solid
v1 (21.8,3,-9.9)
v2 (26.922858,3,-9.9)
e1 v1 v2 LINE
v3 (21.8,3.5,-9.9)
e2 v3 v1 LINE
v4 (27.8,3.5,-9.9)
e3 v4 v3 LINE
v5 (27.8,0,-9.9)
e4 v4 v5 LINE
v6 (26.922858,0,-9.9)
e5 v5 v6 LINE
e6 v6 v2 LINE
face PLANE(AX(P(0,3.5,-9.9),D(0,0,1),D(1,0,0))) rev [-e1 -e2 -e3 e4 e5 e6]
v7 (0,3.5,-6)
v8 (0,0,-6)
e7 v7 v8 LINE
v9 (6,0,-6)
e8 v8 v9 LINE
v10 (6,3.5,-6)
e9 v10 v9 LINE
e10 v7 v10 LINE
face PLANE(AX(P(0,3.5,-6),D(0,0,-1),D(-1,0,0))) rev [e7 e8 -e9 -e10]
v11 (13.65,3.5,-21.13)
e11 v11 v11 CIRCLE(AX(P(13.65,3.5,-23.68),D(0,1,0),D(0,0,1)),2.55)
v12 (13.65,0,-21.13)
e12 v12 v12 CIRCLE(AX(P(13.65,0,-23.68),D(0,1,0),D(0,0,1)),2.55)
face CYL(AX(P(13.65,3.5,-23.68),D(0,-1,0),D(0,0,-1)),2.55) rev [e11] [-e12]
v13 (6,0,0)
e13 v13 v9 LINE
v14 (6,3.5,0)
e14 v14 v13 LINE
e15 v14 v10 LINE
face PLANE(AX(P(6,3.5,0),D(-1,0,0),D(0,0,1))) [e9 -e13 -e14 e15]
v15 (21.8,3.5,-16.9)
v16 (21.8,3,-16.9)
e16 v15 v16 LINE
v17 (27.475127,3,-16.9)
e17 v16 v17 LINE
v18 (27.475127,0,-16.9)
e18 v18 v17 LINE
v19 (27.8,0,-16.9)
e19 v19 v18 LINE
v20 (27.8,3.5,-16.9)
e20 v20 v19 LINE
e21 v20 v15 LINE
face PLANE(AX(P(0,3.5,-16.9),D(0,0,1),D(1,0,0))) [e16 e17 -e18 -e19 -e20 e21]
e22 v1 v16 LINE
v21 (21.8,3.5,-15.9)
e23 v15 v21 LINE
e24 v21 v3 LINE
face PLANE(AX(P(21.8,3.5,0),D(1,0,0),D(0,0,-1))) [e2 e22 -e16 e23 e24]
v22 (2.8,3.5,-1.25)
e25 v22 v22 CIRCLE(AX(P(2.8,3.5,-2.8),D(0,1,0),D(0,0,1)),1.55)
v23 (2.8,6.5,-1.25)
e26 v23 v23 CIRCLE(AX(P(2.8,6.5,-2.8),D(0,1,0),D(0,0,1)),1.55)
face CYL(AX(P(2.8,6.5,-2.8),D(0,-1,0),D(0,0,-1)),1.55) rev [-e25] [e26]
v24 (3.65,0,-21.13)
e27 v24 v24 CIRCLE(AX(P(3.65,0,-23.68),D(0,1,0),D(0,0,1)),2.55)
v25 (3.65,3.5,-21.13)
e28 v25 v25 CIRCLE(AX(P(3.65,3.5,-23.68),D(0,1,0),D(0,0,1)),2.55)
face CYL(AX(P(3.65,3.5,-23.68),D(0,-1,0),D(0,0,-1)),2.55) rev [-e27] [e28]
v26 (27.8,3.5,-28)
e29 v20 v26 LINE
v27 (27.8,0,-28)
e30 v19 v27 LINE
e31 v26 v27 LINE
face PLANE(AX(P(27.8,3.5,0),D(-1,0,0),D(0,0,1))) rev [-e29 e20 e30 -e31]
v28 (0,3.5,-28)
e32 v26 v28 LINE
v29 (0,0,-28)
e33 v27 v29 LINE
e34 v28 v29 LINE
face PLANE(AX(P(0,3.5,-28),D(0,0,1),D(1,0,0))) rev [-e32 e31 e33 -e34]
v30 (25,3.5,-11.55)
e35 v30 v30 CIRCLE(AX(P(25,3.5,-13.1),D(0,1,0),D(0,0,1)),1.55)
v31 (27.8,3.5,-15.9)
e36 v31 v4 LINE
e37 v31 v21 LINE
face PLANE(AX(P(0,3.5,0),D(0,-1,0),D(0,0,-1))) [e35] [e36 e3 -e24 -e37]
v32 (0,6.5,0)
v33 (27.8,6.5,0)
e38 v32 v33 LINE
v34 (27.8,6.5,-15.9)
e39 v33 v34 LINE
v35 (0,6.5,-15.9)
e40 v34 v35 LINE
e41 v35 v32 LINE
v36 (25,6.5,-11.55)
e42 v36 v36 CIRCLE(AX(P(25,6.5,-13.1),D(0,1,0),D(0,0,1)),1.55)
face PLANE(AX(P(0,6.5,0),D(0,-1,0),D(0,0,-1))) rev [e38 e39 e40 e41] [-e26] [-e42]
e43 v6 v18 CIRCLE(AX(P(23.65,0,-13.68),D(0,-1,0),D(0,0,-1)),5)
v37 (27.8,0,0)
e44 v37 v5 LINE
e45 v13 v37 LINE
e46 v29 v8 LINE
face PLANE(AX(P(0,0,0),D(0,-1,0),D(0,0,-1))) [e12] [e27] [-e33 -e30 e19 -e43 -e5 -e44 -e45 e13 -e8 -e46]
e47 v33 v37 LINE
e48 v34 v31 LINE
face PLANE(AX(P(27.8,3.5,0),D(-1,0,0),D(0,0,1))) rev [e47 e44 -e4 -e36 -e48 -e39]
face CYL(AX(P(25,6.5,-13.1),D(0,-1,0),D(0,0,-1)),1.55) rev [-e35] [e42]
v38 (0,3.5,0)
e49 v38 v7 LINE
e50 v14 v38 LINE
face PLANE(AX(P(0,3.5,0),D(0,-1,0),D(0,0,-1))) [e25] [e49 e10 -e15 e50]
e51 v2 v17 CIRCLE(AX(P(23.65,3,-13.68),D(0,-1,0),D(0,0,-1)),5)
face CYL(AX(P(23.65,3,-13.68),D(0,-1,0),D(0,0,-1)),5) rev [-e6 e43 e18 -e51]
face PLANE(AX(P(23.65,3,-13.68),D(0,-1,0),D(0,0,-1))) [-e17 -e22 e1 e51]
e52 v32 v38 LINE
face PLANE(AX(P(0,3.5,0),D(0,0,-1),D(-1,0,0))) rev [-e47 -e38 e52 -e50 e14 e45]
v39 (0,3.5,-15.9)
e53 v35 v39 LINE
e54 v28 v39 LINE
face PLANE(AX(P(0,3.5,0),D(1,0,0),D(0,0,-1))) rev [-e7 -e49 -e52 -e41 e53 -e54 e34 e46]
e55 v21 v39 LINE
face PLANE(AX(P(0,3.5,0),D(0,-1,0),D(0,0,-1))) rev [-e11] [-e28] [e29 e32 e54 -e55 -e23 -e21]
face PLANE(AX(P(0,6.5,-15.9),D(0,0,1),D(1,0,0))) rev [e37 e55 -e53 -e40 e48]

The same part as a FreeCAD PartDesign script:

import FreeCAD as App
import Part
import Sketcher

V = App.Vector

doc = App.newDocument("Part")
body = doc.addObject("PartDesign::Body", "Body")

sketch1 = body.newObject("Sketcher::SketchObject", "Sketch")
sketch1.AttachmentSupport = (doc.getObject("XZ_Plane"), [""])
sketch1.MapMode = "FlatFace"
sketch1.addGeometry(Part.LineSegment(V(0, -28, 0), V(0, 0, 0)), False)
sketch1.addGeometry(Part.LineSegment(V(0, 0, 0), V(27.8, 0, 0)), False)
sketch1.addGeometry(Part.LineSegment(V(27.8, 0, 0), V(27.8, -28, 0)), False)
sketch1.addGeometry(Part.LineSegment(V(27.8, -28, 0), V(0, -28, 0)), False)
sketch1.addGeometry(Part.Circle(V(3.6, -23.7, 0), V(0, 0, 1), 2.5), False)
sketch1.addGeometry(Part.Circle(V(13.7, -23.7, 0), V(0, 0, 1), 2.5), False)
sketch1.addConstraint(Sketcher.Constraint("Coincident", 0, 2, 1, 1))
sketch1.addConstraint(Sketcher.Constraint("Coincident", 1, 2, 2, 1))
sketch1.addConstraint(Sketcher.Constraint("Coincident", 2, 2, 3, 1))
sketch1.addConstraint(Sketcher.Constraint("Coincident", 3, 2, 0, 1))
sketch1.addConstraint(Sketcher.Constraint("Vertical", 0))
sketch1.addConstraint(Sketcher.Constraint("Horizontal", 1))
sketch1.addConstraint(Sketcher.Constraint("Vertical", 2))
sketch1.addConstraint(Sketcher.Constraint("Horizontal", 3))
sketch1.addConstraint(Sketcher.Constraint("Coincident", 0, 2, -1, 1))
sketch1.addConstraint(Sketcher.Constraint("Equal", 4, 5))
sketch1.addConstraint(Sketcher.Constraint("Horizontal", 4, 3, 5, 3))
sketch1.addConstraint(Sketcher.Constraint("Diameter", 4, 5.1))
sketch1.addConstraint(Sketcher.Constraint("DistanceY", 0, 1, 0, 2, 28.0))
sketch1.addConstraint(Sketcher.Constraint("DistanceX", 1, 1, 1, 2, 27.8))
sketch1.addConstraint(Sketcher.Constraint("DistanceX", 4, 3, 5, 3, 10.0))
sketch1.addConstraint(Sketcher.Constraint("DistanceX", -1, 1, 4, 3, 3.65))
sketch1.addConstraint(Sketcher.Constraint("DistanceY", 4, 3, -1, 1, 23.68))
pad1 = body.newObject("PartDesign::Pad", "Pad")
pad1.Profile = sketch1
pad1.Length = 3.5
pad1.Reversed = True

sketch2 = body.newObject("Sketcher::SketchObject", "Sketch001")
sketch2.AttachmentSupport = (doc.getObject("XZ_Plane"), [""])
sketch2.MapMode = "FlatFace"
sketch2.AttachmentOffset = App.Placement(V(0, 0, -3.5), App.Rotation())
sketch2.addGeometry(Part.LineSegment(V(0, -15.9, 0), V(0, 0, 0)), False)
sketch2.addGeometry(Part.LineSegment(V(0, 0, 0), V(27.8, 0, 0)), False)
sketch2.addGeometry(Part.LineSegment(V(27.8, 0, 0), V(27.8, -15.9, 0)), False)
sketch2.addGeometry(Part.LineSegment(V(27.8, -15.9, 0), V(0, -15.9, 0)), False)
sketch2.addGeometry(Part.Circle(V(2.8, -2.8, 0), V(0, 0, 1), 1.6), False)
sketch2.addGeometry(Part.Circle(V(25, -13.1, 0), V(0, 0, 1), 1.6), False)
sketch2.addConstraint(Sketcher.Constraint("Coincident", 0, 2, 1, 1))
sketch2.addConstraint(Sketcher.Constraint("Coincident", 1, 2, 2, 1))
sketch2.addConstraint(Sketcher.Constraint("Coincident", 2, 2, 3, 1))
sketch2.addConstraint(Sketcher.Constraint("Coincident", 3, 2, 0, 1))
sketch2.addConstraint(Sketcher.Constraint("Vertical", 0))
sketch2.addConstraint(Sketcher.Constraint("Horizontal", 1))
sketch2.addConstraint(Sketcher.Constraint("Vertical", 2))
sketch2.addConstraint(Sketcher.Constraint("Horizontal", 3))
sketch2.addConstraint(Sketcher.Constraint("Coincident", 0, 2, -1, 1))
sketch2.addConstraint(Sketcher.Constraint("Equal", 4, 5))
sketch2.addConstraint(Sketcher.Constraint("Diameter", 4, 3.1))
sketch2.addConstraint(Sketcher.Constraint("DistanceX", 1, 1, 1, 2, 27.8))
sketch2.addConstraint(Sketcher.Constraint("DistanceY", 0, 1, 0, 2, 15.9))
sketch2.addConstraint(Sketcher.Constraint("DistanceX", -1, 1, 5, 3, 25.0))
sketch2.addConstraint(Sketcher.Constraint("DistanceX", 4, 3, 1, 2, 25.0))
sketch2.addConstraint(Sketcher.Constraint("DistanceY", 4, 3, -1, 1, 2.8))
sketch2.addConstraint(Sketcher.Constraint("DistanceY", 5, 3, -1, 1, 13.1))
pad2 = body.newObject("PartDesign::Pad", "Pad001")
pad2.Profile = sketch2
pad2.Length = 3
pad2.Reversed = True

sketch3 = body.newObject("Sketcher::SketchObject", "Sketch002")
sketch3.AttachmentSupport = (doc.getObject("XZ_Plane"), [""])
sketch3.MapMode = "FlatFace"
sketch3.addGeometry(Part.LineSegment(V(0, 0, 0), V(0, -6, 0)), False)
sketch3.addGeometry(Part.LineSegment(V(0, -6, 0), V(6, -6, 0)), False)
sketch3.addGeometry(Part.LineSegment(V(6, -6, 0), V(6, 0, 0)), False)
sketch3.addGeometry(Part.LineSegment(V(6, 0, 0), V(0, 0, 0)), False)
sketch3.addConstraint(Sketcher.Constraint("Coincident", 0, 2, 1, 1))
sketch3.addConstraint(Sketcher.Constraint("Coincident", 1, 2, 2, 1))
sketch3.addConstraint(Sketcher.Constraint("Coincident", 2, 2, 3, 1))
sketch3.addConstraint(Sketcher.Constraint("Coincident", 3, 2, 0, 1))
sketch3.addConstraint(Sketcher.Constraint("Vertical", 0))
sketch3.addConstraint(Sketcher.Constraint("Horizontal", 1))
sketch3.addConstraint(Sketcher.Constraint("Vertical", 2))
sketch3.addConstraint(Sketcher.Constraint("Horizontal", 3))
sketch3.addConstraint(Sketcher.Constraint("Coincident", 3, 2, -1, 1))
sketch3.addConstraint(Sketcher.Constraint("Equal", 3, 0))
sketch3.addConstraint(Sketcher.Constraint("DistanceX", 1, 1, 1, 2, 6.0))
pocket1 = body.newObject("PartDesign::Pocket", "Pocket")
pocket1.Profile = sketch3
pocket1.Length = 3.5

sketch4 = body.newObject("Sketcher::SketchObject", "Sketch003")
sketch4.AttachmentSupport = (doc.getObject("XZ_Plane"), [""])
sketch4.MapMode = "FlatFace"
sketch4.addGeometry(Part.LineSegment(V(22, -10, 0), V(22, -17, 0)), False)
sketch4.addGeometry(Part.LineSegment(V(22, -17, 0), V(28, -17, 0)), False)
sketch4.addGeometry(Part.LineSegment(V(28, -17, 0), V(28, -10, 0)), False)
sketch4.addGeometry(Part.LineSegment(V(28, -10, 0), V(22, -10, 0)), False)
sketch4.addConstraint(Sketcher.Constraint("Coincident", 0, 2, 1, 1))
sketch4.addConstraint(Sketcher.Constraint("Coincident", 1, 2, 2, 1))
sketch4.addConstraint(Sketcher.Constraint("Coincident", 2, 2, 3, 1))
sketch4.addConstraint(Sketcher.Constraint("Coincident", 3, 2, 0, 1))
sketch4.addConstraint(Sketcher.Constraint("Vertical", 0))
sketch4.addConstraint(Sketcher.Constraint("Horizontal", 1))
sketch4.addConstraint(Sketcher.Constraint("Vertical", 2))
sketch4.addConstraint(Sketcher.Constraint("Horizontal", 3))
sketch4.addConstraint(Sketcher.Constraint("DistanceX", 1, 1, 1, 2, 6.0))
sketch4.addConstraint(Sketcher.Constraint("DistanceY", 0, 2, 0, 1, 7.0))
sketch4.addConstraint(Sketcher.Constraint("DistanceX", -1, 1, 0, 2, 21.8))
sketch4.addConstraint(Sketcher.Constraint("DistanceY", 0, 2, -1, 1, 16.9))
pocket2 = body.newObject("PartDesign::Pocket", "Pocket001")
pocket2.Profile = sketch4
pocket2.Length = 3.5

sketch5 = body.newObject("Sketcher::SketchObject", "Sketch004")
sketch5.AttachmentSupport = (doc.getObject("XZ_Plane"), [""])
sketch5.MapMode = "FlatFace"
sketch5.addGeometry(Part.Circle(V(13.7, -23.7, 0), V(0, 0, 1), 2.5), False)
sketch5.addGeometry(Part.Circle(V(23.6, -13.7, 0), V(0, 0, 1), 5), False)
sketch5.addConstraint(Sketcher.Constraint("Diameter", 1, 10.0))
sketch5.addConstraint(Sketcher.Constraint("Diameter", 0, 5.1))
sketch5.addConstraint(Sketcher.Constraint("DistanceX", 0, 3, 1, 3, 10.0))
sketch5.addConstraint(Sketcher.Constraint("DistanceY", 0, 3, 1, 3, 10.0))
sketch5.addConstraint(Sketcher.Constraint("DistanceX", -1, 1, 0, 3, 13.65))
sketch5.addConstraint(Sketcher.Constraint("DistanceY", 0, 3, -1, 1, 23.68))
pocket3 = body.newObject("PartDesign::Pocket", "Pocket002")
pocket3.Profile = sketch5
pocket3.Length = 3

doc.recompute()
